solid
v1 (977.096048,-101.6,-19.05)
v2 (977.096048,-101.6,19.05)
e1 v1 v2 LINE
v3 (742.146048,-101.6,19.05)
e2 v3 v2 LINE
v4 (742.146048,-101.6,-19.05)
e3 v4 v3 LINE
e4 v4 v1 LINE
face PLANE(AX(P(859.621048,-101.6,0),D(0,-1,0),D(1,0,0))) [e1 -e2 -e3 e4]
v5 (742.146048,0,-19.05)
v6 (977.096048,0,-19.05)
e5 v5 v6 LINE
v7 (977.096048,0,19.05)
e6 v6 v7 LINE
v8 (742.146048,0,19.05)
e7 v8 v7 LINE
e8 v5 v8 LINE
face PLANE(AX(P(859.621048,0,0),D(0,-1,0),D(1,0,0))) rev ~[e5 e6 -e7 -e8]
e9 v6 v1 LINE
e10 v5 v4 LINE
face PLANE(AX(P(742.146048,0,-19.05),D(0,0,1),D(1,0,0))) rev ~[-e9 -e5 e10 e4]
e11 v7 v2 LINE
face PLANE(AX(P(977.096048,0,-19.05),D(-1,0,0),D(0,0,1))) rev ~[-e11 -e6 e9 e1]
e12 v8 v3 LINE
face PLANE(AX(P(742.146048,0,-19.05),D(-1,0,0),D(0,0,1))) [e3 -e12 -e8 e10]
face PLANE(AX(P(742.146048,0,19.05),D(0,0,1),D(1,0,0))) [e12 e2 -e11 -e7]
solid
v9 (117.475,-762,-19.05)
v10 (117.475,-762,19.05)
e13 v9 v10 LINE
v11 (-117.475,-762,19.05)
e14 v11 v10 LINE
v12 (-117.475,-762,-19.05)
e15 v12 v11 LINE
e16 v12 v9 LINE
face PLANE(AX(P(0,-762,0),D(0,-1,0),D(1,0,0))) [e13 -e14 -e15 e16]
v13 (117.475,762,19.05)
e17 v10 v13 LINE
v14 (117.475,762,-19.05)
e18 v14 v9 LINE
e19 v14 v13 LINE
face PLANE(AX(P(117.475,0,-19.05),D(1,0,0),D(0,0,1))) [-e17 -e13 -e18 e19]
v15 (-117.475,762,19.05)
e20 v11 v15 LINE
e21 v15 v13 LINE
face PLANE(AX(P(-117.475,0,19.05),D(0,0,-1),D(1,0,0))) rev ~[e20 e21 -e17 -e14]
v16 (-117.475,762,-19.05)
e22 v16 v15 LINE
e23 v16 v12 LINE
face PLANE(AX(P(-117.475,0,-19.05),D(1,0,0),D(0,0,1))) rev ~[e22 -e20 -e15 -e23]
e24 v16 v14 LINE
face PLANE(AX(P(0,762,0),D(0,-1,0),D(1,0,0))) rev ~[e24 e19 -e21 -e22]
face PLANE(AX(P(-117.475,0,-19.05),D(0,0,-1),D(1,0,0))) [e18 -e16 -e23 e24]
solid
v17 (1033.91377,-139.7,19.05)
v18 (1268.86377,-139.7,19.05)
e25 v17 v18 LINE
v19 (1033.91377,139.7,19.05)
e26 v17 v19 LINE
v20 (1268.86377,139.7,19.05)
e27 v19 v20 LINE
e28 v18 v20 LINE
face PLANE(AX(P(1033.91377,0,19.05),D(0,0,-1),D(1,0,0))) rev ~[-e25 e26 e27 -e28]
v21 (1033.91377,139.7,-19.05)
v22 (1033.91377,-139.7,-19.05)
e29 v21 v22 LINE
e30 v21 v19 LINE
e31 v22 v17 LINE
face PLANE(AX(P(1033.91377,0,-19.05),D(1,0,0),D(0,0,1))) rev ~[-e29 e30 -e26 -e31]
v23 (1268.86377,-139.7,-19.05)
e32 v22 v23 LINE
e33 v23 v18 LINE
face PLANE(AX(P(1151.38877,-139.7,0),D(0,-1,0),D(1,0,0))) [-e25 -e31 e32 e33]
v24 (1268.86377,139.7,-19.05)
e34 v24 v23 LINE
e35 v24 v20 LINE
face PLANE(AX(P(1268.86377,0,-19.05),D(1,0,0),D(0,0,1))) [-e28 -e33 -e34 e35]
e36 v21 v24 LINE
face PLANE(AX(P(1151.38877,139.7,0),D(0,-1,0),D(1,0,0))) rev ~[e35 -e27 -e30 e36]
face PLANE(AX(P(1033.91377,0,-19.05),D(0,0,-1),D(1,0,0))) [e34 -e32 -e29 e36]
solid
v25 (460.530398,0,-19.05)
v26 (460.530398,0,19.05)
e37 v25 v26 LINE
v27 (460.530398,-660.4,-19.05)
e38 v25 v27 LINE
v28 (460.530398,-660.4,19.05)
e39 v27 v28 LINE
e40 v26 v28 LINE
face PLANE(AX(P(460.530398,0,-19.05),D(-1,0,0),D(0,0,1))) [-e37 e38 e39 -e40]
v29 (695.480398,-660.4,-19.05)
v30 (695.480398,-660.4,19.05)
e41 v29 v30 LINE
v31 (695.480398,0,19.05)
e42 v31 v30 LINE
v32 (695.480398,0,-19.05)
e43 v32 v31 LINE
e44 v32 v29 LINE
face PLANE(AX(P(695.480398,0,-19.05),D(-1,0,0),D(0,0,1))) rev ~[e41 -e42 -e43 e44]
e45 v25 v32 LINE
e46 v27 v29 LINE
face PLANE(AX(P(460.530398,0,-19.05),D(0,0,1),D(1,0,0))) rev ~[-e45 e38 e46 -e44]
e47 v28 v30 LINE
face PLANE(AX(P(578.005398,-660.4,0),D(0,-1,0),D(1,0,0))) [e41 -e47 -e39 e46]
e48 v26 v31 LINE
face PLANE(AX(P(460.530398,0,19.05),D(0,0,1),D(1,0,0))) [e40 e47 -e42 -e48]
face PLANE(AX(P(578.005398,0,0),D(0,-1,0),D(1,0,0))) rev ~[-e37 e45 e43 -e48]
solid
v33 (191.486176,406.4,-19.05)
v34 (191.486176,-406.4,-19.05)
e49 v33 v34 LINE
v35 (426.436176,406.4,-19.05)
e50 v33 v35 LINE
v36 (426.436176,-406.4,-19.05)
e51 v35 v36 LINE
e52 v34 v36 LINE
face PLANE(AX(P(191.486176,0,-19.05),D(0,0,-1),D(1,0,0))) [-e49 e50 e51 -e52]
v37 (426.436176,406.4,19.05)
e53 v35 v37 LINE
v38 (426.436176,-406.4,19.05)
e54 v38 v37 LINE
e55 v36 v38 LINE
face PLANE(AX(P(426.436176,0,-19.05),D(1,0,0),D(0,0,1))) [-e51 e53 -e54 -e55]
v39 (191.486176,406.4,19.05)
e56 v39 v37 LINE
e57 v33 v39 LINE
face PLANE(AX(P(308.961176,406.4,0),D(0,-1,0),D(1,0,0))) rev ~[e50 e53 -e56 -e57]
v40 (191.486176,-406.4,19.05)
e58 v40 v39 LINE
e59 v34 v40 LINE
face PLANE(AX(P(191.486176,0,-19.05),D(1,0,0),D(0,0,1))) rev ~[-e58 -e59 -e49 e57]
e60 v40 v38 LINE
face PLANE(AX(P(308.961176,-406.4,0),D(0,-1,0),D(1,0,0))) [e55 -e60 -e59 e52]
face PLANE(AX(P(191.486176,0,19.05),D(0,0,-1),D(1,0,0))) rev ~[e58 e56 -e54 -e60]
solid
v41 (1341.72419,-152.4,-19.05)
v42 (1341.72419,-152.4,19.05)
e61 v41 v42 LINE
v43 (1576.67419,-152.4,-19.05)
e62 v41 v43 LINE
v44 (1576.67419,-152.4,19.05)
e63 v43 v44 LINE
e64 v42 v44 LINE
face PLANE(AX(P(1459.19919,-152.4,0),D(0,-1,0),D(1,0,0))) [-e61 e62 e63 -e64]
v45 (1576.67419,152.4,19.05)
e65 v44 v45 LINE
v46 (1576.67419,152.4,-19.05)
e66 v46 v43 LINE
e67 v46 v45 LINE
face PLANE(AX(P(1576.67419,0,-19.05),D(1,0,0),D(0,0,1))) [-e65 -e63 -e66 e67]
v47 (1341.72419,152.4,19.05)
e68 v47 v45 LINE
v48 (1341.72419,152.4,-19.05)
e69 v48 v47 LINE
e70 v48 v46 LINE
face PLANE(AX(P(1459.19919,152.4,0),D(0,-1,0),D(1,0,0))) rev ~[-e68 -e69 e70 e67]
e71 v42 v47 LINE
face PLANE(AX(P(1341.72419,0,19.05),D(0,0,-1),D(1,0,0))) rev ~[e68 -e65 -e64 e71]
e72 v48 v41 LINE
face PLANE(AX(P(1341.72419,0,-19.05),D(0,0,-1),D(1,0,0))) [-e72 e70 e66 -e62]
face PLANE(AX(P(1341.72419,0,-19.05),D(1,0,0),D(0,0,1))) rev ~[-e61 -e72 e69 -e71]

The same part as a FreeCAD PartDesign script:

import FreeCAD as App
import Part
import Sketcher
from FreeCAD import Vector
Q = App.Units.Quantity

doc = App.newDocument("Part")
body = doc.addObject("PartDesign::Body", "Body")

sketch1 = doc.addObject("Sketcher::SketchObject", "Sketch")
body.addObject(sketch1)
sketch1.AttachmentSupport = (doc.XZ_Plane, [""])
sketch1.MapMode = "FlatFace"
sketch1.addGeometry(Part.LineSegment(Vector(-117, 19, 0), Vector(-117, -19, 0)), False)
sketch1.addGeometry(Part.LineSegment(Vector(-117, -19, 0), Vector(117, -19, 0)), False)
sketch1.addGeometry(Part.LineSegment(Vector(117, -19, 0), Vector(117, 19, 0)), False)
sketch1.addGeometry(Part.LineSegment(Vector(117, 19, 0), Vector(-117, 19, 0)), False)
sketch1.addConstraint(Sketcher.Constraint("Coincident", 0, 2, 1, 1))
sketch1.addConstraint(Sketcher.Constraint("Coincident", 1, 2, 2, 1))
sketch1.addConstraint(Sketcher.Constraint("Coincident", 2, 2, 3, 1))
sketch1.addConstraint(Sketcher.Constraint("Coincident", 3, 2, 0, 1))
sketch1.addConstraint(Sketcher.Constraint("Vertical", 0))
sketch1.addConstraint(Sketcher.Constraint("Horizontal", 1))
sketch1.addConstraint(Sketcher.Constraint("Vertical", 2))
sketch1.addConstraint(Sketcher.Constraint("Horizontal", 3))
sketch1.addConstraint(Sketcher.Constraint("Symmetric", 0, 2, 2, 2, -1, 1))
sketch1.addConstraint(Sketcher.Constraint("DistanceY", 0, 2, 0, 1, Q("1.5 in")))
sketch1.addConstraint(Sketcher.Constraint("DistanceX", 1, 1, 1, 2, Q("9.25 in")))
pad1 = doc.addObject("PartDesign::Pad", "Pad")
body.addObject(pad1)
pad1.Profile = sketch1
pad1.Length = Q("60 in")
pad1.Midplane = True
body2 = doc.addObject("PartDesign::Body", "Body001")

sketch2 = doc.addObject("Sketcher::SketchObject", "Sketch001")
body2.addObject(sketch2)
sketch2.AttachmentSupport = (doc.getObject("XZ_Plane001"), [""])
sketch2.MapMode = "FlatFace"
sketch2.addGeometry(Part.LineSegment(Vector(191, 19, 0), Vector(191, -19, 0)), False)
sketch2.addGeometry(Part.LineSegment(Vector(191, -19, 0), Vector(426, -19, 0)), False)
sketch2.addGeometry(Part.LineSegment(Vector(426, -19, 0), Vector(426, 19, 0)), False)
sketch2.addGeometry(Part.LineSegment(Vector(426, 19, 0), Vector(191, 19, 0)), False)
sketch2.addConstraint(Sketcher.Constraint("Coincident", 0, 2, 1, 1))
sketch2.addConstraint(Sketcher.Constraint("Coincident", 1, 2, 2, 1))
sketch2.addConstraint(Sketcher.Constraint("Coincident", 2, 2, 3, 1))
sketch2.addConstraint(Sketcher.Constraint("Coincident", 3, 2, 0, 1))
sketch2.addConstraint(Sketcher.Constraint("Vertical", 0))
sketch2.addConstraint(Sketcher.Constraint("Horizontal", 1))
sketch2.addConstraint(Sketcher.Constraint("Vertical", 2))
sketch2.addConstraint(Sketcher.Constraint("Horizontal", 3))
sketch2.addConstraint(Sketcher.Constraint("DistanceY", 0, 2, 0, 1, Q("1.5 in")))
sketch2.addConstraint(Sketcher.Constraint("DistanceX", 1, 1, 1, 2, Q("9.25 in")))
sketch2.addConstraint(Sketcher.Constraint("DistanceY", 0, 2, -1, 1, Q("0.75 in")))
sketch2.addConstraint(Sketcher.Constraint("DistanceX", -1, 1, 0, 2, 191.486176))
pad2 = doc.addObject("PartDesign::Pad", "Pad001")
body2.addObject(pad2)
pad2.Profile = sketch2
pad2.Length = Q("32 in")
pad2.Midplane = True
body3 = doc.addObject("PartDesign::Body", "Body002")

sketch3 = doc.addObject("Sketcher::SketchObject", "Sketch002")
body3.addObject(sketch3)
sketch3.AttachmentSupport = (doc.getObject("XZ_Plane002"), [""])
sketch3.MapMode = "FlatFace"
sketch3.addGeometry(Part.LineSegment(Vector(461, 19, 0), Vector(461, -19, 0)), False)
sketch3.addGeometry(Part.LineSegment(Vector(461, -19, 0), Vector(695, -19, 0)), False)
sketch3.addGeometry(Part.LineSegment(Vector(695, -19, 0), Vector(695, 19, 0)), False)
sketch3.addGeometry(Part.LineSegment(Vector(695, 19, 0), Vector(461, 19, 0)), False)
sketch3.addConstraint(Sketcher.Constraint("Coincident", 0, 2, 1, 1))
sketch3.addConstraint(Sketcher.Constraint("Coincident", 1, 2, 2, 1))
sketch3.addConstraint(Sketcher.Constraint("Coincident", 2, 2, 3, 1))
sketch3.addConstraint(Sketcher.Constraint("Coincident", 3, 2, 0, 1))
sketch3.addConstraint(Sketcher.Constraint("Vertical", 0))
sketch3.addConstraint(Sketcher.Constraint("Horizontal", 1))
sketch3.addConstraint(Sketcher.Constraint("Vertical", 2))
sketch3.addConstraint(Sketcher.Constraint("Horizontal", 3))
sketch3.addConstraint(Sketcher.Constraint("DistanceY", 0, 2, 0, 1, Q("1.5 in")))
sketch3.addConstraint(Sketcher.Constraint("DistanceX", 1, 1, 1, 2, Q("9.25 in")))
sketch3.addConstraint(Sketcher.Constraint("DistanceY", 0, 2, -1, 1, Q("0.75 in")))
sketch3.addConstraint(Sketcher.Constraint("DistanceX", -1, 1, 0, 2, 460.530398))
pad3 = doc.addObject("PartDesign::Pad", "Pad002")
body3.addObject(pad3)
pad3.Profile = sketch3
pad3.Length = Q("26 in")
body4 = doc.addObject("PartDesign::Body", "Body003")

sketch4 = doc.addObject("Sketcher::SketchObject", "Sketch003")
body4.addObject(sketch4)
sketch4.AttachmentSupport = (doc.getObject("XZ_Plane003"), [""])
sketch4.MapMode = "FlatFace"
sketch4.addGeometry(Part.LineSegment(Vector(742, 19, 0), Vector(742, -19, 0)), False)
sketch4.addGeometry(Part.LineSegment(Vector(742, -19, 0), Vector(977, -19, 0)), False)
sketch4.addGeometry(Part.LineSegment(Vector(977, -19, 0), Vector(977, 19, 0)), False)
sketch4.addGeometry(Part.LineSegment(Vector(977, 19, 0), Vector(742, 19, 0)), False)
sketch4.addConstraint(Sketcher.Constraint("Coincident", 0, 2, 1, 1))
sketch4.addConstraint(Sketcher.Constraint("Coincident", 1, 2, 2, 1))
sketch4.addConstraint(Sketcher.Constraint("Coincident", 2, 2, 3, 1))
sketch4.addConstraint(Sketcher.Constraint("Coincident", 3, 2, 0, 1))
sketch4.addConstraint(Sketcher.Constraint("Vertical", 0))
sketch4.addConstraint(Sketcher.Constraint("Horizontal", 1))
sketch4.addConstraint(Sketcher.Constraint("Vertical", 2))
sketch4.addConstraint(Sketcher.Constraint("Horizontal", 3))
sketch4.addConstraint(Sketcher.Constraint("DistanceY", 0, 2, 0, 1, Q("1.5 in")))
sketch4.addConstraint(Sketcher.Constraint("DistanceX", 1, 1, 1, 2, Q("9.25 in")))
sketch4.addConstraint(Sketcher.Constraint("DistanceY", 0, 2, -1, 1, Q("0.75 in")))
sketch4.addConstraint(Sketcher.Constraint("DistanceX", -1, 1, 0, 2, 742.146048))
pad4 = doc.addObject("PartDesign::Pad", "Pad003")
body4.addObject(pad4)
pad4.Profile = sketch4
pad4.Length = Q("4 in")
body5 = doc.addObject("PartDesign::Body", "Body004")

sketch5 = doc.addObject("Sketcher::SketchObject", "Sketch004")
body5.addObject(sketch5)
sketch5.AttachmentSupport = (doc.getObject("XZ_Plane004"), [""])
sketch5.MapMode = "FlatFace"
sketch5.addGeometry(Part.LineSegment(Vector(1034, 19, 0), Vector(1034, -19, 0)), False)
sketch5.addGeometry(Part.LineSegment(Vector(1034, -19, 0), Vector(1269, -19, 0)), False)
sketch5.addGeometry(Part.LineSegment(Vector(1269, -19, 0), Vector(1269, 19, 0)), False)
sketch5.addGeometry(Part.LineSegment(Vector(1269, 19, 0), Vector(1034, 19, 0)), False)
sketch5.addConstraint(Sketcher.Constraint("Coincident", 0, 2, 1, 1))
sketch5.addConstraint(Sketcher.Constraint("Coincident", 1, 2, 2, 1))
sketch5.addConstraint(Sketcher.Constraint("Coincident", 2, 2, 3, 1))
sketch5.addConstraint(Sketcher.Constraint("Coincident", 3, 2, 0, 1))
sketch5.addConstraint(Sketcher.Constraint("Vertical", 0))
sketch5.addConstraint(Sketcher.Constraint("Horizontal", 1))
sketch5.addConstraint(Sketcher.Constraint("Vertical", 2))
sketch5.addConstraint(Sketcher.Constraint("Horizontal", 3))
sketch5.addConstraint(Sketcher.Constraint("DistanceY", 0, 2, 0, 1, Q("1.5 in")))
sketch5.addConstraint(Sketcher.Constraint("DistanceX", 1, 1, 1, 2, Q("9.25 in")))
sketch5.addConstraint(Sketcher.Constraint("DistanceY", 0, 2, -1, 1, Q("0.75 in")))
sketch5.addConstraint(Sketcher.Constraint("DistanceX", -1, 1, 0, 2, 1033.91377))
pad5 = doc.addObject("PartDesign::Pad", "Pad004")
body5.addObject(pad5)
pad5.Profile = sketch5
pad5.Length = Q("11 in")
pad5.Midplane = True
body6 = doc.addObject("PartDesign::Body", "Body005")

sketch6 = doc.addObject("Sketcher::SketchObject", "Sketch005")
body6.addObject(sketch6)
sketch6.AttachmentSupport = (doc.getObject("XZ_Plane005"), [""])
sketch6.MapMode = "FlatFace"
sketch6.addGeometry(Part.LineSegment(Vector(1342, 19, 0), Vector(1342, -19, 0)), False)
sketch6.addGeometry(Part.LineSegment(Vector(1342, -19, 0), Vector(1577, -19, 0)), False)
sketch6.addGeometry(Part.LineSegment(Vector(1577, -19, 0), Vector(1577, 19, 0)), False)
sketch6.addGeometry(Part.LineSegment(Vector(1577, 19, 0), Vector(1342, 19, 0)), False)
sketch6.addConstraint(Sketcher.Constraint("Coincident", 0, 2, 1, 1))
sketch6.addConstraint(Sketcher.Constraint("Coincident", 1, 2, 2, 1))
sketch6.addConstraint(Sketcher.Constraint("Coincident", 2, 2, 3, 1))
sketch6.addConstraint(Sketcher.Constraint("Coincident", 3, 2, 0, 1))
sketch6.addConstraint(Sketcher.Constraint("Vertical", 0))
sketch6.addConstraint(Sketcher.Constraint("Horizontal", 1))
sketch6.addConstraint(Sketcher.Constraint("Vertical", 2))
sketch6.addConstraint(Sketcher.Constraint("Horizontal", 3))
sketch6.addConstraint(Sketcher.Constraint("DistanceY", 0, 2, 0, 1, Q("1.5 in")))
sketch6.addConstraint(Sketcher.Constraint("DistanceX", 1, 1, 1, 2, Q("9.25 in")))
sketch6.addConstraint(Sketcher.Constraint("DistanceY", 0, 2, -1, 1, Q("0.75 in")))
sketch6.addConstraint(Sketcher.Constraint("DistanceX", -1, 1, 0, 2, 1341.72419))
pad6 = doc.addObject("PartDesign::Pad", "Pad005")
body6.addObject(pad6)
pad6.Profile = sketch6
pad6.Length = Q("12 in")
pad6.Midplane = True

doc.recompute()
